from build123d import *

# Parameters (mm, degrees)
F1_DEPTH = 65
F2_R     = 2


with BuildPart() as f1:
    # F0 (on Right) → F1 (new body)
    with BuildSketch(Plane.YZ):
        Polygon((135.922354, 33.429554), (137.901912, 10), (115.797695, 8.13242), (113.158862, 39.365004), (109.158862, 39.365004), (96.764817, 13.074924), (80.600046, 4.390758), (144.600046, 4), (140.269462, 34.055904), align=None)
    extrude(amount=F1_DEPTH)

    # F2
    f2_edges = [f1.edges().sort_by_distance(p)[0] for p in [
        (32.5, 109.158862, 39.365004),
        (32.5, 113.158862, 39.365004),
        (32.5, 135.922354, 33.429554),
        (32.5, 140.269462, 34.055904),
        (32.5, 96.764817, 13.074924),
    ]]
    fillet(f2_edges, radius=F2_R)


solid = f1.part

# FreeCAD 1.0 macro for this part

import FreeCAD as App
import Part
import Sketcher

V = App.Vector


def edges_at(feature, points):
    """Names of the edges that pass closest to the given points."""
    edges = feature.Shape.Edges
    near = lambda p: min(range(len(edges)), key=lambda i: edges[i].distToShape(Part.Vertex(*p))[0])
    return sorted({f"Edge{near(p) + 1}" for p in points})


def add_polygon(sketch, points):
    """Adds a closed chain of lines whose ends are joined by coincident constraints."""
    first, n = sketch.GeometryCount, len(points)
    for a, b in zip(points, points[1:] + points[:1]):
        sketch.addGeometry(Part.LineSegment(App.Vector(*a, 0), App.Vector(*b, 0)), False)
    for i in range(n):
        sketch.addConstraint(Sketcher.Constraint("Coincident", first + i, 2, first + (i + 1) % n, 1))

doc = App.newDocument("Part")
body = doc.addObject("PartDesign::Body", "Body")

sketch1 = doc.addObject("Sketcher::SketchObject", "Sketch")
body.addObject(sketch1)
sketch1.AttachmentSupport = (doc.YZ_Plane, [""])
sketch1.MapMode = "FlatFace"
add_polygon(sketch1, [(135.922354, 33.429554), (137.901912, 10), (115.797695, 8.13242), (113.158862, 39.365004), (109.158862, 39.365004), (96.764817, 13.074924), (80.600046, 4.390758), (144.600046, 4), (140.269462, 34.055904)])
sketch1.addConstraint([
    Sketcher.Constraint("Horizontal", 3),
    Sketcher.Constraint("Perpendicular", 0, 1),
    Sketcher.Constraint("Perpendicular", 1, 2),
    Sketcher.Constraint("Perpendicular", 7, 8),
    Sketcher.Constraint("DistanceX", 3, 2, 3, 1, 4.0),
    Sketcher.Constraint("DistanceY", -1, 1, 0, 2, 10.0),
    Sketcher.Constraint("DistanceY", -1, 1, 6, 2, 4.0),
    Sketcher.Constraint("Distance", 8, 4.392),
    Sketcher.Constraint("DistanceX", 2, 2, 7, 2, 27.1106),
    Sketcher.Constraint("DistanceY", 7, 2, 2, 2, 5.3091),
    Sketcher.Constraint("Distance", 0, 23.513032),
    Sketcher.Constraint("Distance", 4, 29.065111),
    Sketcher.Constraint("DistanceY", -1, 1, 1, 2, 8.13242),
    Sketcher.Constraint("DistanceX", -1, 1, 2, 2, 113.158862),
    Sketcher.Constraint("DistanceX", 2, 2, 0, 2, 24.74305),
    Sketcher.Constraint("DistanceX", 4, 2, 1, 2, 19.032878),
    Sketcher.Constraint("DistanceX", 5, 2, 4, 2, 16.164771),
    Sketcher.Constraint("DistanceY", 5, 2, 1, 2, 3.741662),
])
pad1 = doc.addObject("PartDesign::Pad", "Pad")
body.addObject(pad1)
pad1.Profile = sketch1
pad1.Length = 65
doc.recompute()

fillet = doc.addObject("PartDesign::Fillet", "Fillet")
body.addObject(fillet)
fillet.Base = (pad1, edges_at(pad1, [
    (32.5, 109.159, 39.365),
    (32.5, 113.159, 39.365),
    (32.5, 135.922, 33.43),
    (32.5, 140.269, 34.056),
    (32.5, 96.765, 13.075),
]))
fillet.Radius = 2

doc.recompute()
